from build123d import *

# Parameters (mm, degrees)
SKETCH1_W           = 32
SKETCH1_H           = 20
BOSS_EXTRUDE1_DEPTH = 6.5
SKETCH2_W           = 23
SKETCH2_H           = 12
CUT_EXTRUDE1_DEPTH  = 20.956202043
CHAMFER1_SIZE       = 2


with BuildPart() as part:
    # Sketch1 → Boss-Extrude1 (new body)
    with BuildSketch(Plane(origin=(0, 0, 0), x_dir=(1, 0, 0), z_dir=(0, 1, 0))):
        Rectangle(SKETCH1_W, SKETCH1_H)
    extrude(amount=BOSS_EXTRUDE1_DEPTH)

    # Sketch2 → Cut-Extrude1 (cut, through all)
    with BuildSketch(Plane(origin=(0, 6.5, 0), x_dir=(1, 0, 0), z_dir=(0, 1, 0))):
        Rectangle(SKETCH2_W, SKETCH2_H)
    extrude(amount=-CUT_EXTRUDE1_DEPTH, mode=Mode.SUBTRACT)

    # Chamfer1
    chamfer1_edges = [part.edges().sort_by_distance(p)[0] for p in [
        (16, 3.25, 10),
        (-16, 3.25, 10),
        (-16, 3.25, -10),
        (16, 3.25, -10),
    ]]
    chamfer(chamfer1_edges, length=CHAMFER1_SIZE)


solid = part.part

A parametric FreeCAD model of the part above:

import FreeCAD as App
import Part
import Sketcher

V = App.Vector


def edges_at(feature, points):
    """Names of the edges that pass closest to the given points."""
    edges = feature.Shape.Edges
    near = lambda p: min(range(len(edges)), key=lambda i: edges[i].distToShape(Part.Vertex(*p))[0])
    return sorted({f"Edge{near(p) + 1}" for p in points})

doc = App.newDocument("Part")
body = doc.addObject("PartDesign::Body", "Body")

# Sketch on XZ plane
sketch1 = body.newObject("Sketcher::SketchObject", "Sketch")
sketch1.AttachmentSupport = (doc.getObject("XZ_Plane"), [""])
sketch1.MapMode = "FlatFace"
sketch1.addGeometry([
    Part.LineSegment(V(-16, -10, 0), V(-16, 10, 0)),
    Part.LineSegment(V(-16, 10, 0), V(16, 10, 0)),
    Part.LineSegment(V(16, 10, 0), V(16, -10, 0)),
    Part.LineSegment(V(16, -10, 0), V(-16, -10, 0)),
], False)
sketch1.addConstraint([
    Sketcher.Constraint("Coincident", 0, 2, 1, 1),
    Sketcher.Constraint("Coincident", 1, 2, 2, 1),
    Sketcher.Constraint("Coincident", 2, 2, 3, 1),
    Sketcher.Constraint("Coincident", 3, 2, 0, 1),
    Sketcher.Constraint("Vertical", 0),
    Sketcher.Constraint("Horizontal", 1),
    Sketcher.Constraint("Vertical", 2),
    Sketcher.Constraint("Horizontal", 3),
    Sketcher.Constraint("Symmetric", 0, 2, 2, 2, -1, 1),
    Sketcher.Constraint("DistanceX", 1, 1, 1, 2, 32.0),
    Sketcher.Constraint("DistanceY", 0, 1, 0, 2, 20.0),
])
pad1 = body.newObject("PartDesign::Pad", "Pad")
pad1.Profile = sketch1
pad1.Length = 6.5
pad1.Reversed = True

# Sketch on XZ plane
sketch2 = body.newObject("Sketcher::SketchObject", "Sketch001")
sketch2.AttachmentSupport = (doc.getObject("XZ_Plane"), [""])
sketch2.MapMode = "FlatFace"
sketch2.AttachmentOffset = App.Placement(V(0, 0, -6.5), App.Rotation())
sketch2.addGeometry([
    Part.LineSegment(V(-11.5, -6, 0), V(-11.5, 6, 0)),
    Part.LineSegment(V(-11.5, 6, 0), V(11.5, 6, 0)),
    Part.LineSegment(V(11.5, 6, 0), V(11.5, -6, 0)),
    Part.LineSegment(V(11.5, -6, 0), V(-11.5, -6, 0)),
], False)
sketch2.addConstraint([
    Sketcher.Constraint("Coincident", 0, 2, 1, 1),
    Sketcher.Constraint("Coincident", 1, 2, 2, 1),
    Sketcher.Constraint("Coincident", 2, 2, 3, 1),
    Sketcher.Constraint("Coincident", 3, 2, 0, 1),
    Sketcher.Constraint("Vertical", 0),
    Sketcher.Constraint("Horizontal", 1),
    Sketcher.Constraint("Vertical", 2),
    Sketcher.Constraint("Horizontal", 3),
    Sketcher.Constraint("Symmetric", 0, 2, 2, 2, -1, 1),
    Sketcher.Constraint("DistanceX", 1, 1, 1, 2, 23.0),
    Sketcher.Constraint("DistanceY", 0, 1, 0, 2, 12.0),
])
pocket1 = body.newObject("PartDesign::Pocket", "Pocket")
pocket1.Profile = sketch2
pocket1.Type = "ThroughAll"
pocket1.Reversed = True
doc.recompute()

chamfer = body.newObject("PartDesign::Chamfer", "Chamfer")
chamfer.Base = (pocket1, edges_at(pocket1, [
    (16, 3.25, 10),
    (-16, 3.25, 10),
    (-16, 3.25, -10),
    (16, 3.25, -10),
]))
chamfer.Size = 2

doc.recompute()
